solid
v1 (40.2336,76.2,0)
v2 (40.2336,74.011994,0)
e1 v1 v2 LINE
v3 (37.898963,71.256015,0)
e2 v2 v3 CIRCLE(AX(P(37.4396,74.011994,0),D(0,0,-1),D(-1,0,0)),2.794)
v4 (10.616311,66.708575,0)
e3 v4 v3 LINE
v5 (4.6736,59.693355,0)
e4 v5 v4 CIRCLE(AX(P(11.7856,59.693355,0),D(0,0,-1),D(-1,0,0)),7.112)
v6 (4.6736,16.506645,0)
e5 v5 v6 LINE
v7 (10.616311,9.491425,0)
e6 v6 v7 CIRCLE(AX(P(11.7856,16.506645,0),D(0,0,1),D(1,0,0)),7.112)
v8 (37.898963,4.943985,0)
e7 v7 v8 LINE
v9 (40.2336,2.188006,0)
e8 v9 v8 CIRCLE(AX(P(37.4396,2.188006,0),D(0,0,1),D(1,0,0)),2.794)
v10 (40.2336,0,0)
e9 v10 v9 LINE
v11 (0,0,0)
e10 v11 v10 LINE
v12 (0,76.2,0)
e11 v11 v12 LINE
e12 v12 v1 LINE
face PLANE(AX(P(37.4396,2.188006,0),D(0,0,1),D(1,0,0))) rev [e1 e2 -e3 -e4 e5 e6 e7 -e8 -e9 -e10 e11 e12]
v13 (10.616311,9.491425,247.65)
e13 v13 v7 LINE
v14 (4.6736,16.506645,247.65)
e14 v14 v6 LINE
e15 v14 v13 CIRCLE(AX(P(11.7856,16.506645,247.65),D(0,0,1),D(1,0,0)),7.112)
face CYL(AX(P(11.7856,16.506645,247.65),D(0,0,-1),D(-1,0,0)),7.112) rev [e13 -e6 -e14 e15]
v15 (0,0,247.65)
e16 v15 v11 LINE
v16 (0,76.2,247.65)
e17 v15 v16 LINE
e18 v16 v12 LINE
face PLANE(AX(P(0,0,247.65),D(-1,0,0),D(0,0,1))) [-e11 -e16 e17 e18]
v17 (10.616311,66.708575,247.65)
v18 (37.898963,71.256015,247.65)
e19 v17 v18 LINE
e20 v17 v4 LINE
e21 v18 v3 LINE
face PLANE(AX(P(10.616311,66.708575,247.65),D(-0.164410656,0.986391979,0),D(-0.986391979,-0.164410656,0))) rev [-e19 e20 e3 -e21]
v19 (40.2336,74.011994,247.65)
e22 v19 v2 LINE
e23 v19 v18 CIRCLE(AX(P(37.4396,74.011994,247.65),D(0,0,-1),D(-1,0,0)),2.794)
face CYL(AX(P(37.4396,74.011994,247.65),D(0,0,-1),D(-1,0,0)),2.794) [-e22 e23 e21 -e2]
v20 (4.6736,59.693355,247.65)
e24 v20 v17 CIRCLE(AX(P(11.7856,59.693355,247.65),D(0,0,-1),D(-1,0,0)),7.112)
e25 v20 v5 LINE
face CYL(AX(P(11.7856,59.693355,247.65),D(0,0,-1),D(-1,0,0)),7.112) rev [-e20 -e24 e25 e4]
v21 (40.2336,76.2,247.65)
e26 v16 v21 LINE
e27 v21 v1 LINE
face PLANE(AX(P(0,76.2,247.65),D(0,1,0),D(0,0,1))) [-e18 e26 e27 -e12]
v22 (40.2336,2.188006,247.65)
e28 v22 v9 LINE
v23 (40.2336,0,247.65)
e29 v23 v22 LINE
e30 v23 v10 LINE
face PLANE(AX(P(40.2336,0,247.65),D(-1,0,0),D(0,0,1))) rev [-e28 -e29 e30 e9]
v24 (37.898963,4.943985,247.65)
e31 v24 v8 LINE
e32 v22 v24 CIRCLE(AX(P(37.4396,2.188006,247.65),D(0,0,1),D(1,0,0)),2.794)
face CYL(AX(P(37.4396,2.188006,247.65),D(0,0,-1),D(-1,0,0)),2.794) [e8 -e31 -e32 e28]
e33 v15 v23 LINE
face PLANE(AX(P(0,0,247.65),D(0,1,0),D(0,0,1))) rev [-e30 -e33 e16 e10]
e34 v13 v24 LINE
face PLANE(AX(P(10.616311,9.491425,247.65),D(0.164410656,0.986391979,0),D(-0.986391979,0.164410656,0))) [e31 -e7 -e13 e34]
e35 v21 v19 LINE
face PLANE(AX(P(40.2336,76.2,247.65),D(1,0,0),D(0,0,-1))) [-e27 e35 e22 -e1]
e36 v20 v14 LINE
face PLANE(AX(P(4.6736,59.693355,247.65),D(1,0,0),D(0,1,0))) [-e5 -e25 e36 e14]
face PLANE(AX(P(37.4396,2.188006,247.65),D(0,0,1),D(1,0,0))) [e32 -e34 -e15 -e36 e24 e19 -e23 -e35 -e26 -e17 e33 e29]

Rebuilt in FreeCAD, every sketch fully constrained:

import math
import FreeCAD as App
import Part
import Sketcher
from FreeCAD import Vector
Q = App.Units.Quantity

doc = App.newDocument("Part")
body = doc.addObject("PartDesign::Body", "Body")

# Sketch on XY plane
sketch1 = body.newObject("Sketcher::SketchObject", "Sketch")
sketch1.AttachmentSupport = (doc.getObject("XY_Plane"), [""])
sketch1.MapMode = "FlatFace"
sketch1.addGeometry(Part.LineSegment(Vector(0, 76.2, 0), Vector(0, 0, 0)), False)
sketch1.addGeometry(Part.LineSegment(Vector(0, 0, 0), Vector(40.2, 0, 0)), False)
sketch1.addGeometry(Part.LineSegment(Vector(40.2, 0, 0), Vector(40.2, 2.2, 0)), False)
sketch1.addGeometry(Part.ArcOfCircle(Part.Circle(Vector(37.4, 2.2, 0), Vector(0, 0, 1), 2.8), math.radians(0), math.radians(81)), False)
sketch1.addGeometry(Part.LineSegment(Vector(37.9, 4.9, 0), Vector(10.6, 9.5, 0)), False)
sketch1.addGeometry(Part.ArcOfCircle(Part.Circle(Vector(11.8, 16.5, 0), Vector(0, 0, 1), 7.1), math.radians(180), math.radians(261)), False)
sketch1.addGeometry(Part.LineSegment(Vector(4.7, 16.5, 0), Vector(4.7, 59.7, 0)), False)
sketch1.addGeometry(Part.ArcOfCircle(Part.Circle(Vector(11.8, 59.7, 0), Vector(0, 0, 1), 7.1), math.radians(99), math.radians(180)), False)
sketch1.addGeometry(Part.LineSegment(Vector(10.6, 66.7, 0), Vector(37.9, 71.3, 0)), False)
sketch1.addGeometry(Part.ArcOfCircle(Part.Circle(Vector(37.4, 74, 0), Vector(0, 0, 1), 2.8), math.radians(-81), math.radians(0)), False)
sketch1.addGeometry(Part.LineSegment(Vector(40.2, 74, 0), Vector(40.2, 76.2, 0)), False)
sketch1.addGeometry(Part.LineSegment(Vector(40.2, 76.2, 0), Vector(0, 76.2, 0)), False)
sketch1.addConstraint(Sketcher.Constraint("Coincident", 0, 2, 1, 1))
sketch1.addConstraint(Sketcher.Constraint("Coincident", 1, 2, 2, 1))
sketch1.addConstraint(Sketcher.Constraint("Tangent", 2, 2, 3, 1))
sketch1.addConstraint(Sketcher.Constraint("Tangent", 3, 2, 4, 1))
sketch1.addConstraint(Sketcher.Constraint("Tangent", 4, 2, 5, 2))
sketch1.addConstraint(Sketcher.Constraint("Tangent", 5, 1, 6, 1))
sketch1.addConstraint(Sketcher.Constraint("Tangent", 6, 2, 7, 2))
sketch1.addConstraint(Sketcher.Constraint("Tangent", 7, 1, 8, 1))
sketch1.addConstraint(Sketcher.Constraint("Tangent", 8, 2, 9, 1))
sketch1.addConstraint(Sketcher.Constraint("Tangent", 9, 2, 10, 1))
sketch1.addConstraint(Sketcher.Constraint("Coincident", 10, 2, 11, 1))
sketch1.addConstraint(Sketcher.Constraint("Coincident", 11, 2, 0, 1))
sketch1.addConstraint(Sketcher.Constraint("Vertical", 0))
sketch1.addConstraint(Sketcher.Constraint("Horizontal", 1))
sketch1.addConstraint(Sketcher.Constraint("Vertical", 2))
sketch1.addConstraint(Sketcher.Constraint("Vertical", 6))
sketch1.addConstraint(Sketcher.Constraint("Vertical", 10))
sketch1.addConstraint(Sketcher.Constraint("Horizontal", 11))
sketch1.addConstraint(Sketcher.Constraint("Coincident", 0, 2, -1, 1))
sketch1.addConstraint(Sketcher.Constraint("Equal", 5, 7))
sketch1.addConstraint(Sketcher.Constraint("Equal", 3, 9))
sketch1.addConstraint(Sketcher.Constraint("Vertical", 3, 3, 9, 3))
sketch1.addConstraint(Sketcher.Constraint("Vertical", 4, 2, 7, 1))
sketch1.addConstraint(Sketcher.Constraint("Equal", 2, 10))
sketch1.addConstraint(Sketcher.Constraint("DistanceY", 0, 2, 0, 1, Q("3 in")))
sketch1.addConstraint(Sketcher.Constraint("Radius", 3, Q("0.11 in")))
sketch1.addConstraint(Sketcher.Constraint("Radius", 5, Q("0.28 in")))
sketch1.addConstraint(Sketcher.Constraint("DistanceX", 6, 2, 9, 2, Q("1.4 in")))
sketch1.addConstraint(Sketcher.Constraint("DistanceX", 1, 1, 1, 2, Q("1.584 in")))
sketch1.addConstraint(Sketcher.Constraint("DistanceY", 6, 1, 6, 2, 43.18671))
sketch1.addConstraint(Sketcher.Constraint("DistanceY", 2, 1, 2, 2, 2.188006))
pad1 = body.newObject("PartDesign::Pad", "Pad")
pad1.Profile = sketch1
pad1.Length = Q("9.75 in")

doc.recompute()
